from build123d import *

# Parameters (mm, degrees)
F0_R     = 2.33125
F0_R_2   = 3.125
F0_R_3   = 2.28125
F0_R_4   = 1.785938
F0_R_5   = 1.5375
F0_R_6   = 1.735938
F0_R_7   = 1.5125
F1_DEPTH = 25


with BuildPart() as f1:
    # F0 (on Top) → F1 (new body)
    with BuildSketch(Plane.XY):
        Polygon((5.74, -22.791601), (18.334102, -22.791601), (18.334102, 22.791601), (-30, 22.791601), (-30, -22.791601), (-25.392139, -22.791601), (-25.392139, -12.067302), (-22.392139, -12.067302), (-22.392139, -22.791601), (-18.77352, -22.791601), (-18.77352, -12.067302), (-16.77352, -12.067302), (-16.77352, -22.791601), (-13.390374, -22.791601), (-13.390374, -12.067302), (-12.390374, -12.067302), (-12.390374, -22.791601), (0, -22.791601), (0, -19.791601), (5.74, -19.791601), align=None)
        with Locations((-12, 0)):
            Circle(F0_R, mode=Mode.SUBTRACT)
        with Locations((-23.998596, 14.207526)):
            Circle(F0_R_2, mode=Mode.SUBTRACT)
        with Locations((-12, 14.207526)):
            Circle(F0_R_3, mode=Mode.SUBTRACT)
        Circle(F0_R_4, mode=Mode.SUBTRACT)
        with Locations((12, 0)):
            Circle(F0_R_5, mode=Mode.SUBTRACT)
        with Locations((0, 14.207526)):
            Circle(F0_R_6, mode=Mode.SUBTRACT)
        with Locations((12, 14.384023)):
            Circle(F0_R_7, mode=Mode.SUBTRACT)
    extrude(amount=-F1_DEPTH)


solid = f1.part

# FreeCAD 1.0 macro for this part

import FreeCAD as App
import Part
import Sketcher

V = App.Vector


def add_polygon(sketch, points):
    """Adds a closed chain of lines whose ends are joined by coincident constraints."""
    first, n = sketch.GeometryCount, len(points)
    for a, b in zip(points, points[1:] + points[:1]):
        sketch.addGeometry(Part.LineSegment(App.Vector(*a, 0), App.Vector(*b, 0)), False)
    for i in range(n):
        sketch.addConstraint(Sketcher.Constraint("Coincident", first + i, 2, first + (i + 1) % n, 1))

doc = App.newDocument("Part")
body = doc.addObject("PartDesign::Body", "Body")

# Sketch on XY plane
sketch1 = body.newObject("Sketcher::SketchObject", "Sketch")
sketch1.AttachmentSupport = (doc.getObject("XY_Plane"), [""])
sketch1.MapMode = "FlatFace"
add_polygon(sketch1, [(5.7, -22.8), (18.3, -22.8), (18.3, 22.8), (-30, 22.8), (-30, -22.8), (-25.4, -22.8), (-25.4, -12.1), (-22.4, -12.1), (-22.4, -22.8), (-18.8, -22.8), (-18.8, -12.1), (-16.8, -12.1), (-16.8, -22.8), (-13.4, -22.8), (-13.4, -12.1), (-12.4, -12.1), (-12.4, -22.8), (0, -22.8), (0, -19.8), (5.7, -19.8)])  # lines 0-19
sketch1.addGeometry(Part.Circle(V(-12, 0, 0), V(0, 0, 1), 2.3), False)  # 20
sketch1.addGeometry(Part.Circle(V(0, 0, 0), V(0, 0, 1), 1.8), False)  # 21
sketch1.addGeometry(Part.Circle(V(12, 0, 0), V(0, 0, 1), 1.5), False)  # 22
sketch1.addGeometry(Part.Circle(V(-24, 14.2, 0), V(0, 0, 1), 3.1), False)  # 23
sketch1.addGeometry(Part.Circle(V(-12, 14.2, 0), V(0, 0, 1), 2.3), False)  # 24
sketch1.addGeometry(Part.Circle(V(0, 14.2, 0), V(0, 0, 1), 1.7), False)  # 25
sketch1.addGeometry(Part.Circle(V(12, 14.4, 0), V(0, 0, 1), 1.5), False)  # 26
sketch1.addConstraint(Sketcher.Constraint("Horizontal", 0))
sketch1.addConstraint(Sketcher.Constraint("Vertical", 1))
sketch1.addConstraint(Sketcher.Constraint("Horizontal", 2))
sketch1.addConstraint(Sketcher.Constraint("Vertical", 3))
sketch1.addConstraint(Sketcher.Constraint("Horizontal", 4))
sketch1.addConstraint(Sketcher.Constraint("Vertical", 5))
sketch1.addConstraint(Sketcher.Constraint("Horizontal", 6))
sketch1.addConstraint(Sketcher.Constraint("Vertical", 7))
sketch1.addConstraint(Sketcher.Constraint("Horizontal", 8))
sketch1.addConstraint(Sketcher.Constraint("Vertical", 9))
sketch1.addConstraint(Sketcher.Constraint("Horizontal", 10))
sketch1.addConstraint(Sketcher.Constraint("Vertical", 11))
sketch1.addConstraint(Sketcher.Constraint("Horizontal", 12))
sketch1.addConstraint(Sketcher.Constraint("Vertical", 13))
sketch1.addConstraint(Sketcher.Constraint("Horizontal", 14))
sketch1.addConstraint(Sketcher.Constraint("Vertical", 15))
sketch1.addConstraint(Sketcher.Constraint("Horizontal", 16))
sketch1.addConstraint(Sketcher.Constraint("Vertical", 17))
sketch1.addConstraint(Sketcher.Constraint("Horizontal", 18))
sketch1.addConstraint(Sketcher.Constraint("Vertical", 19))
sketch1.addConstraint(Sketcher.Constraint("Coincident", 21, 3, -1, 1))
sketch1.addConstraint(Sketcher.Constraint("Symmetric", 20, 3, 22, 3, -1, 1))
sketch1.addConstraint(Sketcher.Constraint("PointOnObject", 20, 3, -1))
sketch1.addConstraint(Sketcher.Constraint("PointOnObject", 25, 3, -2))
sketch1.addConstraint(Sketcher.Constraint("PointOnObject", 16, 2, -2))
sketch1.addConstraint(Sketcher.Constraint("Horizontal", 23, 3, 24, 3))
sketch1.addConstraint(Sketcher.Constraint("Horizontal", 24, 3, 25, 3))
sketch1.addConstraint(Sketcher.Constraint("Horizontal", 0, 2, 3, 2))
sketch1.addConstraint(Sketcher.Constraint("Horizontal", 4, 2, 7, 2))
sketch1.addConstraint(Sketcher.Constraint("Horizontal", 6, 2, 9, 2))
sketch1.addConstraint(Sketcher.Constraint("Horizontal", 8, 2, 11, 2))
sketch1.addConstraint(Sketcher.Constraint("Horizontal", 10, 2, 13, 2))
sketch1.addConstraint(Sketcher.Constraint("Horizontal", 12, 2, 15, 2))
sketch1.addConstraint(Sketcher.Constraint("Vertical", 20, 3, 24, 3))
sketch1.addConstraint(Sketcher.Constraint("Vertical", 22, 3, 26, 3))
sketch1.addConstraint(Sketcher.Constraint("Equal", 6, 17))
sketch1.addConstraint(Sketcher.Constraint("Diameter", 23, 6.25))
sketch1.addConstraint(Sketcher.Constraint("DistanceX", 6, 1, 6, 2, 3.0))
sketch1.addConstraint(Sketcher.Constraint("DistanceX", 10, 1, 10, 2, 2.0))
sketch1.addConstraint(Sketcher.Constraint("DistanceX", 14, 1, 14, 2, 1.0))
sketch1.addConstraint(Sketcher.Constraint("Diameter", 22, 3.075))
sketch1.addConstraint(Sketcher.Constraint("Diameter", 26, 3.025))
sketch1.addConstraint(Sketcher.Constraint("DistanceX", 20, 3, -1, 1, 12.0))
sketch1.addConstraint(Sketcher.Constraint("DistanceX", 2, 2, -1, 1, 30.0))
sketch1.addConstraint(Sketcher.Constraint("Diameter", 20, 4.6625))
sketch1.addConstraint(Sketcher.Constraint("Diameter", 24, 4.5625))
sketch1.addConstraint(Sketcher.Constraint("DistanceX", 18, 1, 18, 2, 5.74))
sketch1.addConstraint(Sketcher.Constraint("Diameter", 21, 3.571876))
sketch1.addConstraint(Sketcher.Constraint("Diameter", 25, 3.471876))
sketch1.addConstraint(Sketcher.Constraint("DistanceY", 5, 1, 5, 2, 10.724299))
sketch1.addConstraint(Sketcher.Constraint("DistanceX", 4, 1, 4, 2, 4.607861))
sketch1.addConstraint(Sketcher.Constraint("DistanceX", 8, 1, 8, 2, 3.618619))
sketch1.addConstraint(Sketcher.Constraint("DistanceY", 0, 2, -1, 1, 22.791601))
sketch1.addConstraint(Sketcher.Constraint("DistanceY", -1, 1, 1, 2, 22.791601))
sketch1.addConstraint(Sketcher.Constraint("DistanceX", 0, 1, 0, 2, 12.594102))
sketch1.addConstraint(Sketcher.Constraint("DistanceX", 12, 1, 12, 2, 3.383146))
sketch1.addConstraint(Sketcher.Constraint("DistanceY", 26, 3, 1, 2, 8.407578))
sketch1.addConstraint(Sketcher.Constraint("DistanceX", 23, 3, -1, 1, 23.998596))
sketch1.addConstraint(Sketcher.Constraint("DistanceY", -1, 1, 23, 3, 14.207526))
pad1 = body.newObject("PartDesign::Pad", "Pad")
pad1.Profile = sketch1
pad1.Length = 25
pad1.Reversed = True

doc.recompute()
